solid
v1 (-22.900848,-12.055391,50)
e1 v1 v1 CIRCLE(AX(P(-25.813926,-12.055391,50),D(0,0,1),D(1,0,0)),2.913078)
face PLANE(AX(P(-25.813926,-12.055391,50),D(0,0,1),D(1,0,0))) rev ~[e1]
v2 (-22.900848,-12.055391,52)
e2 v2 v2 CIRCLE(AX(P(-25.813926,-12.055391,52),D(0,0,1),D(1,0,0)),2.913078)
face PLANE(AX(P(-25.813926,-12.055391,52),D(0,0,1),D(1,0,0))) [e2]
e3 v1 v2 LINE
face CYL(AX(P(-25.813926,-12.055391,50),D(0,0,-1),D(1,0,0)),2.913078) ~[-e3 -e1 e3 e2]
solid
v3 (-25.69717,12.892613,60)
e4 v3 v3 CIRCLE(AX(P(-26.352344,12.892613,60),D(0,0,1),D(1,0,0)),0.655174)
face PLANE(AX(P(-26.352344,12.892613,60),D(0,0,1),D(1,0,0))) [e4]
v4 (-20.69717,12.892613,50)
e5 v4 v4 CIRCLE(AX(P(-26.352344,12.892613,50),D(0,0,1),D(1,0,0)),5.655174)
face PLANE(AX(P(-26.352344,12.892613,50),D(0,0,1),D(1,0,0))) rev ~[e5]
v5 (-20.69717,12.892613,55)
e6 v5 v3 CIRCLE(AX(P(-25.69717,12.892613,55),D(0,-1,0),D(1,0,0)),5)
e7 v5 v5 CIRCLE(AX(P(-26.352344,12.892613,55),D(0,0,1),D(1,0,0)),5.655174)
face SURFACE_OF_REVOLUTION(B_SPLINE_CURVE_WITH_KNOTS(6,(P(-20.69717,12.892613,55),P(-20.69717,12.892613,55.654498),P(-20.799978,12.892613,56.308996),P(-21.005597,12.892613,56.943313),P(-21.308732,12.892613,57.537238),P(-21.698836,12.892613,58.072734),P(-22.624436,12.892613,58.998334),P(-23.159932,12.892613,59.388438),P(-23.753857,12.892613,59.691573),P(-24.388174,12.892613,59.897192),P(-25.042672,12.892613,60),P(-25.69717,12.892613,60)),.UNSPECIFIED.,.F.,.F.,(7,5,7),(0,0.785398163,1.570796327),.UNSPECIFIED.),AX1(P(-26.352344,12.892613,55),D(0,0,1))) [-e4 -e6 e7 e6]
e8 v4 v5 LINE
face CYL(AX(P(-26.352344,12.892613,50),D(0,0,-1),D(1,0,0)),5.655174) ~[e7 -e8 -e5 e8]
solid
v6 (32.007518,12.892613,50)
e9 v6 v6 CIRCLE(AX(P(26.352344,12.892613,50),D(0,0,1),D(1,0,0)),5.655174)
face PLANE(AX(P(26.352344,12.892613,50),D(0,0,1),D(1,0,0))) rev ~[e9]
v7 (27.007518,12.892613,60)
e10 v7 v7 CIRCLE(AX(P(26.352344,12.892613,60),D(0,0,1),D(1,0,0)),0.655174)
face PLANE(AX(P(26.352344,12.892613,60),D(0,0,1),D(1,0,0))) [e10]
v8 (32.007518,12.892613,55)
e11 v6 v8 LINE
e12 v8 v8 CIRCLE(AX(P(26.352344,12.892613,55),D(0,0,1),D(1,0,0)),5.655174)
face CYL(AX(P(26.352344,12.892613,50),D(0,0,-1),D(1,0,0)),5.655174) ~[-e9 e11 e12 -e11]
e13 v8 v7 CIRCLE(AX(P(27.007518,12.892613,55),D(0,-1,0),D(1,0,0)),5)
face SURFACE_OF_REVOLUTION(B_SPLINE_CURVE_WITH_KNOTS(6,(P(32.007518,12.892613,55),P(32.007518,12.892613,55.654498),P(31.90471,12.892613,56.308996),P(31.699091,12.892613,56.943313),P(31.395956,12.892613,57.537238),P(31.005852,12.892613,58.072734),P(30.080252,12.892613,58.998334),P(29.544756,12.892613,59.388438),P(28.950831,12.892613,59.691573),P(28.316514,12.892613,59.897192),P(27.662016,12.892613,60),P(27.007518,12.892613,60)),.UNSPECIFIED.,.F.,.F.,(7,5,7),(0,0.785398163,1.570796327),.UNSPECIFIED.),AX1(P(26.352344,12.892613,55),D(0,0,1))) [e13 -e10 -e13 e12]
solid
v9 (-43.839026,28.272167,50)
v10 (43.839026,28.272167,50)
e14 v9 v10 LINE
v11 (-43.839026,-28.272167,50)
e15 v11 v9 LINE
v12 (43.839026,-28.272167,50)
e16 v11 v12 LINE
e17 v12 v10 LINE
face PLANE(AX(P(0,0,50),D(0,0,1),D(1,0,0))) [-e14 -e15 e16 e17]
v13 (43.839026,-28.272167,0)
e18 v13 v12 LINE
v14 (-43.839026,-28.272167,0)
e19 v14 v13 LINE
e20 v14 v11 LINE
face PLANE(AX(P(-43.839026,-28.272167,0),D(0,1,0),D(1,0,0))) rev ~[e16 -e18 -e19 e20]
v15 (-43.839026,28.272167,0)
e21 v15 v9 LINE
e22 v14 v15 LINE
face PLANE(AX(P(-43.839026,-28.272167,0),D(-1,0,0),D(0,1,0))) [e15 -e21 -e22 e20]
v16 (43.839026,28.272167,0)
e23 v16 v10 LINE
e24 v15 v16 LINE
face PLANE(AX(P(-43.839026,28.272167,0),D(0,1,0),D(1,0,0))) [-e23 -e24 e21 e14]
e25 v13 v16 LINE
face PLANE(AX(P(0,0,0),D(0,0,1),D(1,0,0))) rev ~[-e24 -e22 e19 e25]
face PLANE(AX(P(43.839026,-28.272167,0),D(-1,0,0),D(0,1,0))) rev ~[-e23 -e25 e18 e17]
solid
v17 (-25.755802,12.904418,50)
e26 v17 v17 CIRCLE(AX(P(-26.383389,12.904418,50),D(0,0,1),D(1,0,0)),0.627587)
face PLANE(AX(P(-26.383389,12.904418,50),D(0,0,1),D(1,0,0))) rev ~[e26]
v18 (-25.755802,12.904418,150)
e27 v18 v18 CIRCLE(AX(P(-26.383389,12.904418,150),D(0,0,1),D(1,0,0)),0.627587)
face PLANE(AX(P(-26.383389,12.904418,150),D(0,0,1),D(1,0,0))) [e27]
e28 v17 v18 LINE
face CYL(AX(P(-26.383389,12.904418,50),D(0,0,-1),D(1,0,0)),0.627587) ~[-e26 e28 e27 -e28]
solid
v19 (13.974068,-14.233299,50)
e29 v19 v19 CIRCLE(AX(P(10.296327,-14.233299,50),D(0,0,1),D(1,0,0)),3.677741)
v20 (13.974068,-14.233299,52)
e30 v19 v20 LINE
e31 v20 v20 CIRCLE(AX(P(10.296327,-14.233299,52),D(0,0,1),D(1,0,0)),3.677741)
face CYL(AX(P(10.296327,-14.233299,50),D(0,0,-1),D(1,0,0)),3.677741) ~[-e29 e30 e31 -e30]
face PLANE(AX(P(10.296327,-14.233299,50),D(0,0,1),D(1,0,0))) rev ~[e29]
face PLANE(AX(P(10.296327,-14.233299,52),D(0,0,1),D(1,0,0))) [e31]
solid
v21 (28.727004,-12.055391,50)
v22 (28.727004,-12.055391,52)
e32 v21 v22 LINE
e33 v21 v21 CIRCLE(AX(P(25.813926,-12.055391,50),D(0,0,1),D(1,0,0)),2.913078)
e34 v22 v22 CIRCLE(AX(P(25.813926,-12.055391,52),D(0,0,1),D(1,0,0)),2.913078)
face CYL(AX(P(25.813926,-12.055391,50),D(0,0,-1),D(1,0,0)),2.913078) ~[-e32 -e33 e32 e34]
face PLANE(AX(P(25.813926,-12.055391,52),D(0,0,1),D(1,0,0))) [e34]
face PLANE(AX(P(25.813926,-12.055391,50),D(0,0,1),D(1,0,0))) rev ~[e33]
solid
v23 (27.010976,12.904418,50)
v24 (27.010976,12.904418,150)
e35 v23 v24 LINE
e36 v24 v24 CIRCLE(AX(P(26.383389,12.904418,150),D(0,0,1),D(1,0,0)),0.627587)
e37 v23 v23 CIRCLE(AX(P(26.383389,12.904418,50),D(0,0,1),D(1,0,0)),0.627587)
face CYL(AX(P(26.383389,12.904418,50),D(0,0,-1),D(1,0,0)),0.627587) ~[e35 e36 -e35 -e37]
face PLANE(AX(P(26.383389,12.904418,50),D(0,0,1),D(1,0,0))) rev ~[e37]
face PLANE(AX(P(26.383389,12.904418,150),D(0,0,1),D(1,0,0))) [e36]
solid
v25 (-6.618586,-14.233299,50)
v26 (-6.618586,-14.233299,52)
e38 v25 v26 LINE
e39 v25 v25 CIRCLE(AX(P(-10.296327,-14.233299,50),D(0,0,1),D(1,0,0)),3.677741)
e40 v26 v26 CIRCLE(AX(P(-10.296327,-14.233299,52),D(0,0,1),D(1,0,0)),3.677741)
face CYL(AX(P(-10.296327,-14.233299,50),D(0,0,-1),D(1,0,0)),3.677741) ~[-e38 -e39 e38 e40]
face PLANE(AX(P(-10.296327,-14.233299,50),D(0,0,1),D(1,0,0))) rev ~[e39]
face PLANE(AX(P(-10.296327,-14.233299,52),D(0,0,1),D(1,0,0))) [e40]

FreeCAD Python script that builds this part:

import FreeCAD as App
import Part
import Sketcher


def edges_at(feature, points):
    """Names of the edges that pass closest to the given points."""
    edges = feature.Shape.Edges
    near = lambda p: min(range(len(edges)), key=lambda i: edges[i].distToShape(Part.Vertex(*p))[0])
    return sorted({f"Edge{near(p) + 1}" for p in points})

doc = App.newDocument("Part")
params = doc.addObject("Spreadsheet::Sheet", "Params")
for row, (alias, value) in enumerate([
    ("pad1_length", "50 mm"),
    ("pad2_length", "10 mm"),
    ("fillet_radius", "5 mm"),
    ("pad3_length", "2 mm"),
    ("pad4_length", "100 mm"),
], start=1):
    params.set(f"A{row}", alias)
    params.set(f"B{row}", "=" + value)
    params.setAlias(f"B{row}", alias)

body = doc.addObject("PartDesign::Body", "Body")

sketch1 = body.newObject("Sketcher::SketchObject", "Sketch")
sketch1.AttachmentSupport = (doc.getObject("XY_Plane"), [""])
sketch1.MapMode = "FlatFace"
sketch1.addGeometry(Part.LineSegment(App.Vector(-44, 28, 0), App.Vector(-44, -28, 0)), False)
sketch1.addGeometry(Part.LineSegment(App.Vector(-44, -28, 0), App.Vector(44, -28, 0)), False)
sketch1.addGeometry(Part.LineSegment(App.Vector(44, -28, 0), App.Vector(44, 28, 0)), False)
sketch1.addGeometry(Part.LineSegment(App.Vector(44, 28, 0), App.Vector(-44, 28, 0)), False)
sketch1.addConstraint(Sketcher.Constraint("Coincident", 0, 2, 1, 1))
sketch1.addConstraint(Sketcher.Constraint("Coincident", 1, 2, 2, 1))
sketch1.addConstraint(Sketcher.Constraint("Coincident", 2, 2, 3, 1))
sketch1.addConstraint(Sketcher.Constraint("Coincident", 3, 2, 0, 1))
sketch1.addConstraint(Sketcher.Constraint("Vertical", 0))
sketch1.addConstraint(Sketcher.Constraint("Horizontal", 1))
sketch1.addConstraint(Sketcher.Constraint("Vertical", 2))
sketch1.addConstraint(Sketcher.Constraint("Horizontal", 3))
sketch1.addConstraint(Sketcher.Constraint("Symmetric", 0, 2, 2, 2, -1, 1))
sketch1.addConstraint(Sketcher.Constraint("DistanceX", 1, 1, 1, 2, 87.678052))
sketch1.addConstraint(Sketcher.Constraint("DistanceY", 0, 2, 0, 1, 56.544334))
pad1 = body.newObject("PartDesign::Pad", "Pad")
pad1.Profile = sketch1
pad1.setExpression("Length", "Params.pad1_length")
body2 = doc.addObject("PartDesign::Body", "Body001")
body2.AllowCompound = True

sketch2 = body2.newObject("Sketcher::SketchObject", "Sketch001")
sketch2.AttachmentSupport = (doc.getObject("XY_Plane001"), [""])
sketch2.MapMode = "FlatFace"
sketch2.AttachmentOffset = App.Placement(App.Vector(0, 0, 50), App.Rotation())
sketch2.addGeometry(Part.Circle(App.Vector(-26, 13, 0), App.Vector(0, 0, 1), 6), False)
sketch2.addGeometry(Part.Circle(App.Vector(26, 13, 0), App.Vector(0, 0, 1), 6), False)
sketch2.addConstraint(Sketcher.Constraint("Equal", 0, 1))
sketch2.addConstraint(Sketcher.Constraint("Symmetric", 0, 3, 1, 3, -2))
sketch2.addConstraint(Sketcher.Constraint("Diameter", 0, 11.310348))
sketch2.addConstraint(Sketcher.Constraint("DistanceX", 0, 3, -1, 1, 26.352344))
sketch2.addConstraint(Sketcher.Constraint("DistanceY", -1, 1, 0, 3, 12.892613))
pad2 = body2.newObject("PartDesign::Pad", "Pad001")
pad2.Profile = sketch2
pad2.setExpression("Length", "Params.pad2_length")
doc.recompute()

fillet = body2.newObject("PartDesign::Fillet", "Fillet")
fillet.Base = (pad2, edges_at(pad2, [(20.697, 12.893, 60), (-32.008, 12.893, 60)]))
fillet.setExpression("Radius", "Params.fillet_radius")
body3 = doc.addObject("PartDesign::Body", "Body002")
body3.AllowCompound = True

sketch3 = body3.newObject("Sketcher::SketchObject", "Sketch002")
sketch3.AttachmentSupport = (doc.getObject("XY_Plane002"), [""])
sketch3.MapMode = "FlatFace"
sketch3.AttachmentOffset = App.Placement(App.Vector(0, 0, 50), App.Rotation())
sketch3.addGeometry(Part.Circle(App.Vector(-25.8, -12.1, 0), App.Vector(0, 0, 1), 2.9), False)
sketch3.addGeometry(Part.Circle(App.Vector(-10.3, -14.2, 0), App.Vector(0, 0, 1), 3.7), False)
sketch3.addGeometry(Part.Circle(App.Vector(10.3, -14.2, 0), App.Vector(0, 0, 1), 3.7), False)
sketch3.addGeometry(Part.Circle(App.Vector(25.8, -12.1, 0), App.Vector(0, 0, 1), 2.9), False)
sketch3.addConstraint(Sketcher.Constraint("Equal", 1, 2))
sketch3.addConstraint(Sketcher.Constraint("Equal", 0, 3))
sketch3.addConstraint(Sketcher.Constraint("Symmetric", 1, 3, 2, 3, -2))
sketch3.addConstraint(Sketcher.Constraint("Symmetric", 0, 3, 3, 3, -2))
sketch3.addConstraint(Sketcher.Constraint("Diameter", 0, 5.826156))
sketch3.addConstraint(Sketcher.Constraint("Diameter", 1, 7.355482))
sketch3.addConstraint(Sketcher.Constraint("DistanceY", 1, 3, -1, 1, 14.233299))
sketch3.addConstraint(Sketcher.Constraint("DistanceX", 0, 3, 1, 3, 15.517599))
sketch3.addConstraint(Sketcher.Constraint("DistanceY", 0, 3, -1, 1, 12.055391))
sketch3.addConstraint(Sketcher.Constraint("DistanceX", 0, 3, 3, 3, 51.627852))
pad3 = body3.newObject("PartDesign::Pad", "Pad002")
pad3.Profile = sketch3
pad3.setExpression("Length", "Params.pad3_length")
body4 = doc.addObject("PartDesign::Body", "Body003")
body4.AllowCompound = True

sketch4 = body4.newObject("Sketcher::SketchObject", "Sketch003")
sketch4.AttachmentSupport = (doc.getObject("XY_Plane003"), [""])
sketch4.MapMode = "FlatFace"
sketch4.AttachmentOffset = App.Placement(App.Vector(0, 0, 50), App.Rotation())
sketch4.addGeometry(Part.Circle(App.Vector(-26.4, 12.9, 0), App.Vector(0, 0, 1), 0.6), False)
sketch4.addGeometry(Part.Circle(App.Vector(26.4, 12.9, 0), App.Vector(0, 0, 1), 0.6), False)
sketch4.addConstraint(Sketcher.Constraint("Equal", 0, 1))
sketch4.addConstraint(Sketcher.Constraint("Symmetric", 0, 3, 1, 3, -2))
sketch4.addConstraint(Sketcher.Constraint("Diameter", 0, 1.255174))
sketch4.addConstraint(Sketcher.Constraint("DistanceX", 0, 3, -1, 1, 26.383389))
sketch4.addConstraint(Sketcher.Constraint("DistanceY", -1, 1, 0, 3, 12.904418))
pad4 = body4.newObject("PartDesign::Pad", "Pad003")
pad4.Profile = sketch4
pad4.setExpression("Length", "Params.pad4_length")

doc.recompute()
